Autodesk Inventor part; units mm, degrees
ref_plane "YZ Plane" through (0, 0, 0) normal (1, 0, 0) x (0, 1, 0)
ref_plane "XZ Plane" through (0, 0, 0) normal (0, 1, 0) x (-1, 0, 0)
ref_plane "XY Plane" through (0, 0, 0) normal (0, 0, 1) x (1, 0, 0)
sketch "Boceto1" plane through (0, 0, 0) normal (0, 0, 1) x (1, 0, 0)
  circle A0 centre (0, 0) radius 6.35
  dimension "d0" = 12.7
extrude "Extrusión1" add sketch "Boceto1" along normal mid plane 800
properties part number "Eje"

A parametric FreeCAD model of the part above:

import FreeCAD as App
import Part
import Sketcher
from FreeCAD import Vector
Q = App.Units.Quantity

doc = App.newDocument("Part")
body = doc.addObject("PartDesign::Body", "Body")

sketch1 = body.newObject("Sketcher::SketchObject", "Sketch")
sketch1.AttachmentSupport = (doc.getObject("XY_Plane"), [""])
sketch1.MapMode = "FlatFace"
sketch1.addGeometry(Part.Circle(Vector(0, 0, 0), Vector(0, 0, 1), 6), False)
sketch1.addConstraint(Sketcher.Constraint("Coincident", 0, 3, -1, 1))
sketch1.addConstraint(Sketcher.Constraint("Diameter", 0, Q("12.7 mm")))
pad1 = body.newObject("PartDesign::Pad", "Pad")
pad1.Profile = sketch1
pad1.Length = 800
pad1.Midplane = True

doc.recompute()
